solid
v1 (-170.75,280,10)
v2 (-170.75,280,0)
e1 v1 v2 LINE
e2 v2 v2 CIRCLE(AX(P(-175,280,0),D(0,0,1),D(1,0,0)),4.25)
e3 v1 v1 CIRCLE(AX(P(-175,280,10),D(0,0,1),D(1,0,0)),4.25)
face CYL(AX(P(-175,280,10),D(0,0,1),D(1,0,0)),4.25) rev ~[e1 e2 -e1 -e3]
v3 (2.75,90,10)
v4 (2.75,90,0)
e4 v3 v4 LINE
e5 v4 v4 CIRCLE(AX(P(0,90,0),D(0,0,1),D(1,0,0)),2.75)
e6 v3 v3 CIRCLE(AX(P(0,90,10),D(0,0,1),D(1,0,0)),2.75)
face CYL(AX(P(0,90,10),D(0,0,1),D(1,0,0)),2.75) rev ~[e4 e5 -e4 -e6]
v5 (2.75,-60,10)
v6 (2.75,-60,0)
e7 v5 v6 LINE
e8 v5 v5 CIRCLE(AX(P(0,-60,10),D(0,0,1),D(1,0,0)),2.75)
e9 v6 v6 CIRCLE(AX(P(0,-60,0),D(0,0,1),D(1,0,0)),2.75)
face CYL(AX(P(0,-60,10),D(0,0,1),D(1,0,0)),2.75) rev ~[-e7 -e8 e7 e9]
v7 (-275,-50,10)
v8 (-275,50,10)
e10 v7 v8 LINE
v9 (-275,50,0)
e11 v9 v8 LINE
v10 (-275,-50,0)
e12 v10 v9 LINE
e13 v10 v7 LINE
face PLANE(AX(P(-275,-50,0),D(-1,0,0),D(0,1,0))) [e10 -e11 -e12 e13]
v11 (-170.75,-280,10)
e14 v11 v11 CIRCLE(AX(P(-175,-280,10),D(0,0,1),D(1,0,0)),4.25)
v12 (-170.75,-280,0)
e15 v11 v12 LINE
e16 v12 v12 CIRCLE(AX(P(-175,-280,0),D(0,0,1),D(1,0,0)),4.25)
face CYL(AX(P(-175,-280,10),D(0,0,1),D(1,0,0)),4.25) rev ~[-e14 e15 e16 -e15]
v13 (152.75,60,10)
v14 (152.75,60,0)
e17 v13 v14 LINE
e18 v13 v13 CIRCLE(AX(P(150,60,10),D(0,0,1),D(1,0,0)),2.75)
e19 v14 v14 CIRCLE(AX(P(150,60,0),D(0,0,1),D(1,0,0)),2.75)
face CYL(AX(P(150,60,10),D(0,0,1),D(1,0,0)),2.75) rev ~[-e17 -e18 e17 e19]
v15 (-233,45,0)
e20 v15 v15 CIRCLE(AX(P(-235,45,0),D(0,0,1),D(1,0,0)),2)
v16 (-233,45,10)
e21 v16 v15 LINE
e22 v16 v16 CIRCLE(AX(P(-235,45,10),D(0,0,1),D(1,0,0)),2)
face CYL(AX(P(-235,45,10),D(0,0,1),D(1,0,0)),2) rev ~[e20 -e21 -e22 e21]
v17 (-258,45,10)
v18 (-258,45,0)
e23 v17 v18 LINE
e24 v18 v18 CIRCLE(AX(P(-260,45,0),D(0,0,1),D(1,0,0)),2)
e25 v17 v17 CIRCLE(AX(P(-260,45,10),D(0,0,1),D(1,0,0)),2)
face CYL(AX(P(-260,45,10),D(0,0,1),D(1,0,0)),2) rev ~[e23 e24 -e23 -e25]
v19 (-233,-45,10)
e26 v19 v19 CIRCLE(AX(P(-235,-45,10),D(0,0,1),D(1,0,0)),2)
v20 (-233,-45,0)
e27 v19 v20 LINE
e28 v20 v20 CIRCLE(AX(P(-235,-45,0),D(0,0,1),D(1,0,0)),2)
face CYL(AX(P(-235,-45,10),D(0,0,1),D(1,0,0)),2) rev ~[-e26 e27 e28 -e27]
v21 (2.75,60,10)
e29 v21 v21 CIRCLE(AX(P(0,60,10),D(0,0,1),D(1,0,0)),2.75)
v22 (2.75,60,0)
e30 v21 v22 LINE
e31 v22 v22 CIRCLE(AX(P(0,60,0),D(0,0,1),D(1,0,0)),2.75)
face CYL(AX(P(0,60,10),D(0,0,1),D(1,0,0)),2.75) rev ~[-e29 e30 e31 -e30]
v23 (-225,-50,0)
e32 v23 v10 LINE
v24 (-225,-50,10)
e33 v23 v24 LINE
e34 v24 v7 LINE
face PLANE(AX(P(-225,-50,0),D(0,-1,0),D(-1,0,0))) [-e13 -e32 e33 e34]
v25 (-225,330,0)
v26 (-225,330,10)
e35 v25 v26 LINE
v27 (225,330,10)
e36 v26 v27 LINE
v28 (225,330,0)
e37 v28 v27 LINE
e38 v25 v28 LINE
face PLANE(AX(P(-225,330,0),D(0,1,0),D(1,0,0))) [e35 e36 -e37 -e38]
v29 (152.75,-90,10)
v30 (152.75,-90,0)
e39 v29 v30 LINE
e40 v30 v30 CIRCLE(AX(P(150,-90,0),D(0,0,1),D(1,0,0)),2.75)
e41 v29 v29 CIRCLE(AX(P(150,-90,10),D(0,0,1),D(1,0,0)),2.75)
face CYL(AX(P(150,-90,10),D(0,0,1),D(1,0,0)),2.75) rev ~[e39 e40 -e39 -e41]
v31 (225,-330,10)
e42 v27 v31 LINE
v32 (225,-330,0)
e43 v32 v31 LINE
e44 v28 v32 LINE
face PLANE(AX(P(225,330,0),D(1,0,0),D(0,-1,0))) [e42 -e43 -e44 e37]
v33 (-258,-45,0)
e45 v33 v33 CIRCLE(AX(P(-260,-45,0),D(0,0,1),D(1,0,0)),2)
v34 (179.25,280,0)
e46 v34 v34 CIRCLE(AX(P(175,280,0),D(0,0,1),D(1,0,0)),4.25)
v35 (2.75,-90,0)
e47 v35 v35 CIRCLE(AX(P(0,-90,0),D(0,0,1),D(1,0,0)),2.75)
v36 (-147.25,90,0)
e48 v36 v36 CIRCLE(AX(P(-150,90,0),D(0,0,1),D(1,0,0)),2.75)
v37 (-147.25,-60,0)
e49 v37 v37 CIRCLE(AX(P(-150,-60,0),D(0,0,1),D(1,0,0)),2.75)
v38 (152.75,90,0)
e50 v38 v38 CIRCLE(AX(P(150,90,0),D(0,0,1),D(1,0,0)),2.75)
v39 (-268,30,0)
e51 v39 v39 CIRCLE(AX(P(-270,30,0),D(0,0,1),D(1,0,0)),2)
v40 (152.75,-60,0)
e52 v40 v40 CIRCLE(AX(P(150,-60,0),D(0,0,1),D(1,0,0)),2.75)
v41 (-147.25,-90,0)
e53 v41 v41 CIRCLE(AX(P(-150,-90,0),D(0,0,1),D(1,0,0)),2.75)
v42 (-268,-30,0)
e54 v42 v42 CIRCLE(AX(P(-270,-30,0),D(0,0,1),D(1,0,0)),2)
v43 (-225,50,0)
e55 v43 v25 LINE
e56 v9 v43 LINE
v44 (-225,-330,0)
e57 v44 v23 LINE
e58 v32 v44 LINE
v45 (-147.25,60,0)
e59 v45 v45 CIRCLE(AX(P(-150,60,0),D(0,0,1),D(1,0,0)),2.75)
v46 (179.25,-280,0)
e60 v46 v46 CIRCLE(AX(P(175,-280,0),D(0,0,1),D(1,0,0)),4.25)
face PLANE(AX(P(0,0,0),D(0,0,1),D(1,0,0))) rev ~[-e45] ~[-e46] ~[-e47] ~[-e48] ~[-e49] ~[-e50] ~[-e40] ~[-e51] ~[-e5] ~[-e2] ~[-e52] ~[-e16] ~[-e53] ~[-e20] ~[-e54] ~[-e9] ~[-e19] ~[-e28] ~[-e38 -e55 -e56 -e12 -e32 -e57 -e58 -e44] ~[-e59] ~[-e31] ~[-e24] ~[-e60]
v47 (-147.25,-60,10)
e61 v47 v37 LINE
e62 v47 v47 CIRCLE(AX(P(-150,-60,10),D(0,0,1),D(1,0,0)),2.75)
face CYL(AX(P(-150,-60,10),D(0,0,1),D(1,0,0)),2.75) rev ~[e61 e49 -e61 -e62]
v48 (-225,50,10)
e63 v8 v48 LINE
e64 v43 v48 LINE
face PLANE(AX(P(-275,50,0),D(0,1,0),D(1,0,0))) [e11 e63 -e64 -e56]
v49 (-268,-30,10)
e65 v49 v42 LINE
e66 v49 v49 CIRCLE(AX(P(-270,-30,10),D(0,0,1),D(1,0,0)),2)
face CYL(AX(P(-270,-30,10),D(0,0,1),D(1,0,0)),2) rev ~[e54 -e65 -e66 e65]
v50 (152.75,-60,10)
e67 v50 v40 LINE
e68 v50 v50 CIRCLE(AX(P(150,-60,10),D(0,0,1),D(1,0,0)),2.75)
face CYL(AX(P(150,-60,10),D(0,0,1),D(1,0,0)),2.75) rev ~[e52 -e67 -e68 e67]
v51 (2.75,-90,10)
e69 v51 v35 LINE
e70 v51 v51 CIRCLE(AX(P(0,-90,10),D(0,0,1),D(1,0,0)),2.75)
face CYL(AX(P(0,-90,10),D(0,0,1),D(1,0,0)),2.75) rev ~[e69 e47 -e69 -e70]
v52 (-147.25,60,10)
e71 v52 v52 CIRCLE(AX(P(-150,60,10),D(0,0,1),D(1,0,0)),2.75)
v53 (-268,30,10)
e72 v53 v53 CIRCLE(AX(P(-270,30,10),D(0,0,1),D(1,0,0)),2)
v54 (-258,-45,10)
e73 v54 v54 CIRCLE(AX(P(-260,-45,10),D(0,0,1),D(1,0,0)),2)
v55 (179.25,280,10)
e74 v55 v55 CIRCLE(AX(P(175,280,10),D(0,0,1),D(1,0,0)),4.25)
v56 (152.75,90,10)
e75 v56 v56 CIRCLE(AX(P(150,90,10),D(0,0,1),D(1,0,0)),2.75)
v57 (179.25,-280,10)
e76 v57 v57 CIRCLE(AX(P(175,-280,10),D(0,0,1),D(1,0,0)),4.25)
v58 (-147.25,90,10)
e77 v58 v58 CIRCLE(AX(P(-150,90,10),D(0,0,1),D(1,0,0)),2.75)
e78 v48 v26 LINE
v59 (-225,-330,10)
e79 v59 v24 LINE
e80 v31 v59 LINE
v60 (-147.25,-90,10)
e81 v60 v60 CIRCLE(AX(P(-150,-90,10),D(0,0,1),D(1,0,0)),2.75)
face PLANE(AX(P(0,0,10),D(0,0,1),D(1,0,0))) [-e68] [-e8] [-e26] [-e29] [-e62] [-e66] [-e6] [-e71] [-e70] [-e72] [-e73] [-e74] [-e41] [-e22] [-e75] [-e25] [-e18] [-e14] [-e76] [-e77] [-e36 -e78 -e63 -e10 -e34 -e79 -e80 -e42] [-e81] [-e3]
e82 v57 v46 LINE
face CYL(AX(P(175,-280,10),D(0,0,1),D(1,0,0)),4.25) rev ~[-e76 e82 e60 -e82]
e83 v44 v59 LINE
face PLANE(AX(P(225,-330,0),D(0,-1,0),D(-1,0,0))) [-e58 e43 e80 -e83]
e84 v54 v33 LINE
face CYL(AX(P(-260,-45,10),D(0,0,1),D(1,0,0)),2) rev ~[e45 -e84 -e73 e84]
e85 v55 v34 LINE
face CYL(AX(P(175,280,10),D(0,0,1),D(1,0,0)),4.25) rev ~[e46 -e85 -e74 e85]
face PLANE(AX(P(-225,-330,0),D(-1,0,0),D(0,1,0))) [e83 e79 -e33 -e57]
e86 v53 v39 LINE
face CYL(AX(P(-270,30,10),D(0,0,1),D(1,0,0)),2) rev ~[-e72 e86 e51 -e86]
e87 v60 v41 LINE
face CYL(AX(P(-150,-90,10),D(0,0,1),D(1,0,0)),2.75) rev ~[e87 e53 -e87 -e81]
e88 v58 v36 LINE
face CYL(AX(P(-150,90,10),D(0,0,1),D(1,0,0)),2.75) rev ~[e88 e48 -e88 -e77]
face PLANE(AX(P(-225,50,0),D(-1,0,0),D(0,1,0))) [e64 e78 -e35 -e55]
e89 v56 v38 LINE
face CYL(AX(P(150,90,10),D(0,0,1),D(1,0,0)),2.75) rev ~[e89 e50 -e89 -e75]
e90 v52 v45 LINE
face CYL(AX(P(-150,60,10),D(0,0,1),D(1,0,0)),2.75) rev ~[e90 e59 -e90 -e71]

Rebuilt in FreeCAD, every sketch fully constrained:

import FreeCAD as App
import Part
import Sketcher

V = App.Vector

doc = App.newDocument("Part")
body = doc.addObject("PartDesign::Body", "Body")

# Sketch on XY plane
sketch1 = doc.addObject("Sketcher::SketchObject", "Sketch")
body.addObject(sketch1)
sketch1.AttachmentSupport = (doc.XY_Plane, [""])
sketch1.MapMode = "FlatFace"
sketch1.addGeometry([
    Part.LineSegment(V(225, 330, 0), V(-225, 330, 0)),  # 0
    Part.LineSegment(V(-225, 330, 0), V(-225, 50, 0)),  # 1
    Part.LineSegment(V(-225, 50, 0), V(-275, 50, 0)),  # 2
    Part.LineSegment(V(-275, 50, 0), V(-275, -50, 0)),  # 3
    Part.LineSegment(V(-275, -50, 0), V(-225, -50, 0)),  # 4
    Part.LineSegment(V(-225, -50, 0), V(-225, -330, 0)),  # 5
    Part.LineSegment(V(-225, -330, 0), V(225, -330, 0)),  # 6
    Part.LineSegment(V(225, -330, 0), V(225, 330, 0)),  # 7
], False)
sketch1.addConstraint([
    Sketcher.Constraint("Coincident", 0, 2, 1, 1),
    Sketcher.Constraint("Coincident", 1, 2, 2, 1),
    Sketcher.Constraint("Coincident", 2, 2, 3, 1),
    Sketcher.Constraint("Coincident", 3, 2, 4, 1),
    Sketcher.Constraint("Coincident", 4, 2, 5, 1),
    Sketcher.Constraint("Coincident", 5, 2, 6, 1),
    Sketcher.Constraint("Coincident", 6, 2, 7, 1),
    Sketcher.Constraint("Coincident", 7, 2, 0, 1),
    Sketcher.Constraint("Horizontal", 0),
    Sketcher.Constraint("Vertical", 1),
    Sketcher.Constraint("Horizontal", 2),
    Sketcher.Constraint("Vertical", 3),
    Sketcher.Constraint("Horizontal", 4),
    Sketcher.Constraint("Vertical", 5),
    Sketcher.Constraint("Horizontal", 6),
    Sketcher.Constraint("Vertical", 7),
    Sketcher.Constraint("Symmetric", 0, 2, 6, 2, -1, 1),
    Sketcher.Constraint("Symmetric", 1, 2, 4, 2, -1),
    Sketcher.Constraint("DistanceX", 0, 2, 0, 1, 450.0),
    Sketcher.Constraint("DistanceY", 1, 2, 1, 1, 280.0),
    Sketcher.Constraint("DistanceY", 3, 2, 3, 1, 100.0),
    Sketcher.Constraint("DistanceX", 2, 2, 2, 1, 50.0),
])
pad1 = doc.addObject("PartDesign::Pad", "Pad")
body.addObject(pad1)
pad1.Profile = sketch1
pad1.Length = 10

# Sketch on XY plane
sketch2 = doc.addObject("Sketcher::SketchObject", "Sketch001")
body.addObject(sketch2)
sketch2.AttachmentSupport = (doc.XY_Plane, [""])
sketch2.MapMode = "FlatFace"
sketch2.AttachmentOffset = App.Placement(V(0, 0, 10), App.Rotation())
sketch2.addGeometry([
    Part.Circle(V(-175, 280, 0), V(0, 0, 1), 4.2),  # 0
    Part.Circle(V(175, 280, 0), V(0, 0, 1), 4.2),  # 1
    Part.Circle(V(175, -280, 0), V(0, 0, 1), 4.2),  # 2
    Part.Circle(V(-175, -280, 0), V(0, 0, 1), 4.2),  # 3
    Part.Circle(V(-270, 30, 0), V(0, 0, 1), 2),  # 4
    Part.Circle(V(-270, -30, 0), V(0, 0, 1), 2),  # 5
    Part.Circle(V(-150, 60, 0), V(0, 0, 1), 2.8),  # 6
    Part.Circle(V(0, 60, 0), V(0, 0, 1), 2.8),  # 7
    Part.Circle(V(150, 60, 0), V(0, 0, 1), 2.8),  # 8
    Part.Circle(V(-150, 90, 0), V(0, 0, 1), 2.8),  # 9
    Part.Circle(V(0, 90, 0), V(0, 0, 1), 2.8),  # 10
    Part.Circle(V(150, 90, 0), V(0, 0, 1), 2.8),  # 11
    Part.Circle(V(-150, -90, 0), V(0, 0, 1), 2.8),  # 12
    Part.Circle(V(0, -90, 0), V(0, 0, 1), 2.8),  # 13
    Part.Circle(V(150, -90, 0), V(0, 0, 1), 2.8),  # 14
    Part.Circle(V(-150, -60, 0), V(0, 0, 1), 2.8),  # 15
    Part.Circle(V(0, -60, 0), V(0, 0, 1), 2.8),  # 16
    Part.Circle(V(150, -60, 0), V(0, 0, 1), 2.8),  # 17
    Part.Circle(V(-260, -45, 0), V(0, 0, 1), 2),  # 18
    Part.Circle(V(-260, 45, 0), V(0, 0, 1), 2),  # 19
    Part.Circle(V(-235, 45, 0), V(0, 0, 1), 2),  # 20
    Part.Circle(V(-235, -45, 0), V(0, 0, 1), 2),  # 21
], False)
sketch2.addConstraint([
    Sketcher.Constraint("Equal", 0, 1),
    Sketcher.Constraint("Equal", 1, 2),
    Sketcher.Constraint("Equal", 2, 3),
    Sketcher.Constraint("Equal", 4, 5),
    Sketcher.Constraint("Equal", 6, 7),
    Sketcher.Constraint("Equal", 7, 8),
    Sketcher.Constraint("Equal", 8, 9),
    Sketcher.Constraint("Equal", 9, 10),
    Sketcher.Constraint("Equal", 10, 11),
    Sketcher.Constraint("Equal", 11, 12),
    Sketcher.Constraint("Equal", 12, 13),
    Sketcher.Constraint("Equal", 13, 14),
    Sketcher.Constraint("Equal", 14, 15),
    Sketcher.Constraint("Equal", 15, 16),
    Sketcher.Constraint("Equal", 16, 17),
    Sketcher.Constraint("Equal", 5, 18),
    Sketcher.Constraint("Equal", 18, 19),
    Sketcher.Constraint("Equal", 19, 20),
    Sketcher.Constraint("Equal", 20, 21),
    Sketcher.Constraint("Symmetric", 0, 3, 2, 3, -1, 1),
    Sketcher.Constraint("Symmetric", 1, 3, 3, 3, -1, 1),
    Sketcher.Constraint("Symmetric", 11, 3, 12, 3, -1, 1),
    Sketcher.Constraint("Symmetric", 10, 3, 13, 3, -1, 1),
    Sketcher.Constraint("Symmetric", 9, 3, 14, 3, -1, 1),
    Sketcher.Constraint("Symmetric", 8, 3, 15, 3, -1, 1),
    Sketcher.Constraint("Symmetric", 7, 3, 16, 3, -1, 1),
    Sketcher.Constraint("Symmetric", 6, 3, 17, 3, -1, 1),
    Sketcher.Constraint("Symmetric", 0, 3, 1, 3, -2),
    Sketcher.Constraint("Symmetric", 6, 3, 8, 3, -2),
    Sketcher.Constraint("Symmetric", 9, 3, 11, 3, -2),
    Sketcher.Constraint("Symmetric", 4, 3, 5, 3, -1),
    Sketcher.Constraint("Symmetric", 18, 3, 19, 3, -1),
    Sketcher.Constraint("Symmetric", 20, 3, 21, 3, -1),
    Sketcher.Constraint("PointOnObject", 7, 3, -2),
    Sketcher.Constraint("PointOnObject", 10, 3, -2),
    Sketcher.Constraint("Horizontal", 6, 3, 7, 3),
    Sketcher.Constraint("Horizontal", 9, 3, 10, 3),
    Sketcher.Constraint("Horizontal", 19, 3, 20, 3),
    Sketcher.Constraint("Vertical", 6, 3, 9, 3),
    Sketcher.Constraint("Diameter", 4, 4.0),
    Sketcher.Constraint("Diameter", 0, 8.5),
    Sketcher.Constraint("Diameter", 6, 5.5),
    Sketcher.Constraint("DistanceY", -1, 1, 4, 3, 30.0),
    Sketcher.Constraint("DistanceX", 6, 3, -1, 1, 150.0),
    Sketcher.Constraint("DistanceY", -1, 1, 6, 3, 60.0),
    Sketcher.Constraint("DistanceY", -1, 1, 9, 3, 90.0),
    Sketcher.Constraint("DistanceX", 0, 3, 6, 3, 25.0),
    Sketcher.Constraint("DistanceX", 5, 3, 18, 3, 10.0),
    Sketcher.Constraint("DistanceY", 18, 3, 19, 3, 90.0),
    Sketcher.Constraint("DistanceX", 19, 3, 20, 3, 25.0),
    Sketcher.Constraint("DistanceY", -1, 1, 0, 3, 280.0),
    Sketcher.Constraint("DistanceX", 4, 3, -1, 1, 270.0),
])
pocket1 = doc.addObject("PartDesign::Pocket", "Pocket")
body.addObject(pocket1)
pocket1.Profile = sketch2
pocket1.Length = 10

doc.recompute()
